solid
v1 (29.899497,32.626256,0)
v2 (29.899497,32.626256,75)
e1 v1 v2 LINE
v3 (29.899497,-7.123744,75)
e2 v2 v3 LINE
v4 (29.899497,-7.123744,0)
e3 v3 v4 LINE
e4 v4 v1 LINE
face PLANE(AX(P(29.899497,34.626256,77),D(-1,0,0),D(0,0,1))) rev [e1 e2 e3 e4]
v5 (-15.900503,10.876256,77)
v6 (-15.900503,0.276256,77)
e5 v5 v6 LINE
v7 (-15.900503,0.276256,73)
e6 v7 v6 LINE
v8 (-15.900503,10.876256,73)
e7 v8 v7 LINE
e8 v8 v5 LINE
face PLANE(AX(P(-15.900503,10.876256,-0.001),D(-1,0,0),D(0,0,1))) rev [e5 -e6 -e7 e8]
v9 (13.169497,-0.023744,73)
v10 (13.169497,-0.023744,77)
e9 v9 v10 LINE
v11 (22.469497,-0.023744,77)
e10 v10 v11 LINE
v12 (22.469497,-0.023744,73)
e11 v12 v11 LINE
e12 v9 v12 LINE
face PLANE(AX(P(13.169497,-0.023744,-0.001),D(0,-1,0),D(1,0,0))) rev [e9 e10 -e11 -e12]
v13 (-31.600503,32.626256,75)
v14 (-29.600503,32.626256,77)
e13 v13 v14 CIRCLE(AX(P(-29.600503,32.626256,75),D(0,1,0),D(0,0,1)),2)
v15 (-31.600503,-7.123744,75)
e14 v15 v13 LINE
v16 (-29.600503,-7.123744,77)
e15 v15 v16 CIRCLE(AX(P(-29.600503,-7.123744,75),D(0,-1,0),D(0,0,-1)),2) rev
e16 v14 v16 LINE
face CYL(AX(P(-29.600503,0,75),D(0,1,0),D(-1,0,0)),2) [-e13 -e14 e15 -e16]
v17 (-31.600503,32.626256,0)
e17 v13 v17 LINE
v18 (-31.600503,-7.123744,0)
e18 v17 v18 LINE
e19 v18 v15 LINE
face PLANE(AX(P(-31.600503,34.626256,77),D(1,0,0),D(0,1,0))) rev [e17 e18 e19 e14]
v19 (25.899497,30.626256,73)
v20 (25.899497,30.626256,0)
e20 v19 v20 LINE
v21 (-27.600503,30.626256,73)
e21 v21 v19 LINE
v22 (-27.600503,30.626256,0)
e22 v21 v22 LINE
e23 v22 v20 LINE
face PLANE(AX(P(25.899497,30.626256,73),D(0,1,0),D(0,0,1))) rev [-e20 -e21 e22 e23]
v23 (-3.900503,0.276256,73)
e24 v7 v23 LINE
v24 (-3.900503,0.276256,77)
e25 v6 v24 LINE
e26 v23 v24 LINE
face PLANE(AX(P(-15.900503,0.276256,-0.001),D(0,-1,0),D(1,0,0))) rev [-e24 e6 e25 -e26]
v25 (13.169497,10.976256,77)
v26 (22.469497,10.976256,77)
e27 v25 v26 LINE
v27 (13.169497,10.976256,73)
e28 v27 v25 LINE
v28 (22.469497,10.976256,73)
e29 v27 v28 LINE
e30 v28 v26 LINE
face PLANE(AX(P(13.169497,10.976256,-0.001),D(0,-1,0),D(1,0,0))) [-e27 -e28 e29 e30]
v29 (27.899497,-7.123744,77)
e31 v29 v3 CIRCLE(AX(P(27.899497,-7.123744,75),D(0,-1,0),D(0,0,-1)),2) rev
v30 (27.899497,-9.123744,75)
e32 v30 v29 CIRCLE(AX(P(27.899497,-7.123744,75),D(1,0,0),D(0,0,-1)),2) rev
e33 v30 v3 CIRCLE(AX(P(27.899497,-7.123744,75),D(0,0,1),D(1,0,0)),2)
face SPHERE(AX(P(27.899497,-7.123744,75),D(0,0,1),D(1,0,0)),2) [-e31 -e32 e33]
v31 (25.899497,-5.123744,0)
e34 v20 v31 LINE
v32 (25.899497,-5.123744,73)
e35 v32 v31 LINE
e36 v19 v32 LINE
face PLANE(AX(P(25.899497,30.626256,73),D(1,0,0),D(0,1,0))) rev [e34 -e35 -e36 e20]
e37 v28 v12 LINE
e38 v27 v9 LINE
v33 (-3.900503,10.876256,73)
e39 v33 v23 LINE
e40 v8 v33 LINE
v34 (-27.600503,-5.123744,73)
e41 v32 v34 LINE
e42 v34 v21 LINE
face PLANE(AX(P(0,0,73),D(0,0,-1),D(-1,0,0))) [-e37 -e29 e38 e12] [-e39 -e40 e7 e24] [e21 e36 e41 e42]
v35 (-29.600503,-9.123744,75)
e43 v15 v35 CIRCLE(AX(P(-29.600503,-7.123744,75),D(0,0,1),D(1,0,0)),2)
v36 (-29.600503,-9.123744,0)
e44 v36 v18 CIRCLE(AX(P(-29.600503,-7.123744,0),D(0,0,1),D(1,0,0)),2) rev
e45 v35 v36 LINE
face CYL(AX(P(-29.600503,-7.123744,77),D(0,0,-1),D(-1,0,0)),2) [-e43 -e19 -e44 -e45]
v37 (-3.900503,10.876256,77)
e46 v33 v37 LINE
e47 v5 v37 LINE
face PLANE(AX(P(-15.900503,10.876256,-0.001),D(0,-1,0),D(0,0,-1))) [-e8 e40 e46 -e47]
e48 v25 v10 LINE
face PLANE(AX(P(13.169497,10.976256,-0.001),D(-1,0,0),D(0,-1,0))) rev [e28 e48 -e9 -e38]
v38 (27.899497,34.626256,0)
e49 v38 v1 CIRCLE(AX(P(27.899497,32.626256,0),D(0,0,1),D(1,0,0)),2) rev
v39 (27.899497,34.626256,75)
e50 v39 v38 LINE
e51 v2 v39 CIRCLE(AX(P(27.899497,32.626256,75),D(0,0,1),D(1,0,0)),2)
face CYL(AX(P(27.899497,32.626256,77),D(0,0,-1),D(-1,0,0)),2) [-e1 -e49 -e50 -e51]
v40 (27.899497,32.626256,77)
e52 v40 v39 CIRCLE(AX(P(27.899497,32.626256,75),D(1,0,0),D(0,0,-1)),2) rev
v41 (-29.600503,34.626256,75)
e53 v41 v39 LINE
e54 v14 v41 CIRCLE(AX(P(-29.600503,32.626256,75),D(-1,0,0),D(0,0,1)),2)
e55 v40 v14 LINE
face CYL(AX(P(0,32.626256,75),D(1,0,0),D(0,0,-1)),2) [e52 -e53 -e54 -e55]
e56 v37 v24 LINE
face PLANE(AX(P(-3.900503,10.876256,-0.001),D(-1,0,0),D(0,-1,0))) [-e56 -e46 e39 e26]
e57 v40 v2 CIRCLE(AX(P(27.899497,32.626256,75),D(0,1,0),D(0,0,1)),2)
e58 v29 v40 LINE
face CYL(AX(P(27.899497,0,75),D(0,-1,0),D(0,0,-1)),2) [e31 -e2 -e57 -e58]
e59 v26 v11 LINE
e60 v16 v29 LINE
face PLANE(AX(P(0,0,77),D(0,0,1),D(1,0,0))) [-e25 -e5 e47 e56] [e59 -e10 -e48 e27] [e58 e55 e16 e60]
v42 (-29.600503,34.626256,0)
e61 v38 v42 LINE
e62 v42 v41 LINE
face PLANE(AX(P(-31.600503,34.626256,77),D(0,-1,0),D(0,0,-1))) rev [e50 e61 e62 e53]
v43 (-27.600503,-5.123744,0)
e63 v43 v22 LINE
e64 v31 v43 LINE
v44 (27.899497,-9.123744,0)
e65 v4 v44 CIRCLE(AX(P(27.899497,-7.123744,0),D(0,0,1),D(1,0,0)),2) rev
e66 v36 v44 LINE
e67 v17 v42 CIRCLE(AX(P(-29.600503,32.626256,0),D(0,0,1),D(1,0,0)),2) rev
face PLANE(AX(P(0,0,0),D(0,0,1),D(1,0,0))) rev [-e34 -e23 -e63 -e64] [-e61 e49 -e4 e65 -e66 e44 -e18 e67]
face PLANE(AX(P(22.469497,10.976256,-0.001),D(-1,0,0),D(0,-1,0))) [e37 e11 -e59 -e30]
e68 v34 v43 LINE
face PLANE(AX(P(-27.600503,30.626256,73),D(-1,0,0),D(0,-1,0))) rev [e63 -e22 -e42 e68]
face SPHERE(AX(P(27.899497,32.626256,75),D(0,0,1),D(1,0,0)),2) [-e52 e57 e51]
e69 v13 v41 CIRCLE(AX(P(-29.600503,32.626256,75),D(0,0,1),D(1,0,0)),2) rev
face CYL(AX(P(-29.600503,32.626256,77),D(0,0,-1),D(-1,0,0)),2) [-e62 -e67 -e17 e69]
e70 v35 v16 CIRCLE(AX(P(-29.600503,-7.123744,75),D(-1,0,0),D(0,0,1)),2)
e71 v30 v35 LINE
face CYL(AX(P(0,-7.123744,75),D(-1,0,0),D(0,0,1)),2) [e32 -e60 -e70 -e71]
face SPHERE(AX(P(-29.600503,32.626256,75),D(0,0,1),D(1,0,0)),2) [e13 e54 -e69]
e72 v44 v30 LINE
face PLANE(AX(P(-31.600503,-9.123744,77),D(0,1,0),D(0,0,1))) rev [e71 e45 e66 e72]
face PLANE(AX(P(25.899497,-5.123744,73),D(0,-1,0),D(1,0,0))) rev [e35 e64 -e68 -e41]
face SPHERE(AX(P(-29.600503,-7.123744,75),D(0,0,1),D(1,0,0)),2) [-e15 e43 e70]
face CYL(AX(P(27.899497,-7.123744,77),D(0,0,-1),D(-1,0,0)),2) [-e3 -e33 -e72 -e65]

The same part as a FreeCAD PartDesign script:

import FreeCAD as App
import Part
import Sketcher


def edges_at(feature, points):
    """Names of the edges that pass closest to the given points."""
    edges = feature.Shape.Edges
    near = lambda p: min(range(len(edges)), key=lambda i: edges[i].distToShape(Part.Vertex(*p))[0])
    return sorted({f"Edge{near(p) + 1}" for p in points})


def add_polygon(sketch, points):
    """Adds a closed chain of lines whose ends are joined by coincident constraints."""
    first, n = sketch.GeometryCount, len(points)
    for a, b in zip(points, points[1:] + points[:1]):
        sketch.addGeometry(Part.LineSegment(App.Vector(*a, 0), App.Vector(*b, 0)), False)
    for i in range(n):
        sketch.addConstraint(Sketcher.Constraint("Coincident", first + i, 2, first + (i + 1) % n, 1))

doc = App.newDocument("Part")
params = doc.addObject("Spreadsheet::Sheet", "Params")
for row, (alias, value) in enumerate([
    ("sketch1_width", "61.5 mm"),
    ("sketch1_height", "43.75 mm"),
    ("pad1_length", "77 mm"),
    ("sketch2_height", "11 mm"),
    ("sketch2_width", "9.3 mm"),
    ("sketch3_width", "12 mm"),
    ("sketch3_height", "10.6 mm"),
    ("sketch4_width", "53.5 mm"),
    ("sketch4_height", "35.75 mm"),
    ("pocket3_length", "73 mm"),
    ("fillet_radius", "2 mm"),
], start=1):
    params.set(f"A{row}", alias)
    params.set(f"B{row}", "=" + value)
    params.setAlias(f"B{row}", alias)

body = doc.addObject("PartDesign::Body", "Body")

# Sketch on XY plane
sketch1 = body.newObject("Sketcher::SketchObject", "Sketch")
sketch1.AttachmentSupport = (doc.getObject("XY_Plane"), [""])
sketch1.MapMode = "FlatFace"
add_polygon(sketch1, [(-32, 35), (-32, -9), (30, -9), (30, 35)])  # lines 0-3
sketch1.addConstraint([
    Sketcher.Constraint("Vertical", 0),
    Sketcher.Constraint("Horizontal", 1),
    Sketcher.Constraint("Vertical", 2),
    Sketcher.Constraint("Horizontal", 3),
    Sketcher.Constraint("DistanceX", 1, 1, 1, 2, 61.5),
    Sketcher.Constraint("DistanceY", 0, 2, 0, 1, 43.75),
    Sketcher.Constraint("DistanceX", 0, 2, -1, 1, 31.600503),
    Sketcher.Constraint("DistanceY", 0, 2, -1, 1, 9.123744),
])
sketch1.setExpression("Constraints[8]", "Params.sketch1_width")
sketch1.setExpression("Constraints[9]", "Params.sketch1_height")
pad1 = body.newObject("PartDesign::Pad", "Pad")
pad1.Profile = sketch1
pad1.setExpression("Length", "Params.pad1_length")

# Sketch on XY plane
sketch2 = body.newObject("Sketcher::SketchObject", "Sketch001")
sketch2.AttachmentSupport = (doc.getObject("XY_Plane"), [""])
sketch2.MapMode = "FlatFace"
sketch2.AttachmentOffset = App.Placement(App.Vector(0, 0, 77), App.Rotation())
add_polygon(sketch2, [(13, 11), (13, 0), (22, 0), (22, 11)])  # lines 0-3
sketch2.addConstraint([
    Sketcher.Constraint("Vertical", 0),
    Sketcher.Constraint("Horizontal", 1),
    Sketcher.Constraint("Vertical", 2),
    Sketcher.Constraint("Horizontal", 3),
    Sketcher.Constraint("DistanceY", 0, 2, 0, 1, 11.0),
    Sketcher.Constraint("DistanceX", 1, 1, 1, 2, 9.3),
    Sketcher.Constraint("DistanceX", -1, 1, 0, 2, 13.169497),
    Sketcher.Constraint("DistanceY", 0, 2, -1, 1, 0.023744),
])
sketch2.setExpression("Constraints[8]", "Params.sketch2_height")
sketch2.setExpression("Constraints[9]", "Params.sketch2_width")
pocket1 = body.newObject("PartDesign::Pocket", "Pocket")
pocket1.Profile = sketch2
pocket1.Type = "UpToFirst"

# Sketch on XY plane
sketch3 = body.newObject("Sketcher::SketchObject", "Sketch002")
sketch3.AttachmentSupport = (doc.getObject("XY_Plane"), [""])
sketch3.MapMode = "FlatFace"
sketch3.AttachmentOffset = App.Placement(App.Vector(0, 0, 77), App.Rotation())
add_polygon(sketch3, [(-16, 11), (-16, 0), (-4, 0), (-4, 11)])  # lines 0-3
sketch3.addConstraint([
    Sketcher.Constraint("Vertical", 0),
    Sketcher.Constraint("Horizontal", 1),
    Sketcher.Constraint("Vertical", 2),
    Sketcher.Constraint("Horizontal", 3),
    Sketcher.Constraint("DistanceX", 1, 1, 1, 2, 12.0),
    Sketcher.Constraint("DistanceY", 0, 2, 0, 1, 10.6),
    Sketcher.Constraint("DistanceX", 0, 2, -1, 1, 15.900503),
    Sketcher.Constraint("DistanceY", -1, 1, 0, 2, 0.276256),
])
sketch3.setExpression("Constraints[8]", "Params.sketch3_width")
sketch3.setExpression("Constraints[9]", "Params.sketch3_height")
pocket2 = body.newObject("PartDesign::Pocket", "Pocket001")
pocket2.Profile = sketch3
pocket2.Type = "UpToFirst"

# Sketch on XY plane
sketch4 = body.newObject("Sketcher::SketchObject", "Sketch003")
sketch4.AttachmentSupport = (doc.getObject("XY_Plane"), [""])
sketch4.MapMode = "FlatFace"
add_polygon(sketch4, [(26, 31), (26, -5), (-28, -5), (-28, 31)])  # lines 0-3
sketch4.addConstraint([
    Sketcher.Constraint("Vertical", 0),
    Sketcher.Constraint("Horizontal", 1),
    Sketcher.Constraint("Vertical", 2),
    Sketcher.Constraint("Horizontal", 3),
    Sketcher.Constraint("DistanceX", 1, 2, 1, 1, 53.5),
    Sketcher.Constraint("DistanceY", 0, 2, 0, 1, 35.75),
    Sketcher.Constraint("DistanceX", -1, 1, 0, 2, 25.899497),
    Sketcher.Constraint("DistanceY", 0, 2, -1, 1, 5.123744),
])
sketch4.setExpression("Constraints[8]", "Params.sketch4_width")
sketch4.setExpression("Constraints[9]", "Params.sketch4_height")
pocket3 = body.newObject("PartDesign::Pocket", "Pocket002")
pocket3.Profile = sketch4
pocket3.setExpression("Length", "Params.pocket3_length")
pocket3.Reversed = True
doc.recompute()

fillet = body.newObject("PartDesign::Fillet", "Fillet")
fillet.Base = (pocket3, edges_at(pocket3, [
    (29.899, 12.751, 77),
    (-0.851, 34.626, 77),
    (-31.601, 12.751, 77),
    (-31.601, 34.626, 38.5),
    (29.899, 34.626, 38.5),
    (29.899, -9.124, 38.5),
    (-31.601, -9.124, 38.5),
    (-0.851, -9.124, 77),
]))
fillet.setExpression("Radius", "Params.fillet_radius")

doc.recompute()
